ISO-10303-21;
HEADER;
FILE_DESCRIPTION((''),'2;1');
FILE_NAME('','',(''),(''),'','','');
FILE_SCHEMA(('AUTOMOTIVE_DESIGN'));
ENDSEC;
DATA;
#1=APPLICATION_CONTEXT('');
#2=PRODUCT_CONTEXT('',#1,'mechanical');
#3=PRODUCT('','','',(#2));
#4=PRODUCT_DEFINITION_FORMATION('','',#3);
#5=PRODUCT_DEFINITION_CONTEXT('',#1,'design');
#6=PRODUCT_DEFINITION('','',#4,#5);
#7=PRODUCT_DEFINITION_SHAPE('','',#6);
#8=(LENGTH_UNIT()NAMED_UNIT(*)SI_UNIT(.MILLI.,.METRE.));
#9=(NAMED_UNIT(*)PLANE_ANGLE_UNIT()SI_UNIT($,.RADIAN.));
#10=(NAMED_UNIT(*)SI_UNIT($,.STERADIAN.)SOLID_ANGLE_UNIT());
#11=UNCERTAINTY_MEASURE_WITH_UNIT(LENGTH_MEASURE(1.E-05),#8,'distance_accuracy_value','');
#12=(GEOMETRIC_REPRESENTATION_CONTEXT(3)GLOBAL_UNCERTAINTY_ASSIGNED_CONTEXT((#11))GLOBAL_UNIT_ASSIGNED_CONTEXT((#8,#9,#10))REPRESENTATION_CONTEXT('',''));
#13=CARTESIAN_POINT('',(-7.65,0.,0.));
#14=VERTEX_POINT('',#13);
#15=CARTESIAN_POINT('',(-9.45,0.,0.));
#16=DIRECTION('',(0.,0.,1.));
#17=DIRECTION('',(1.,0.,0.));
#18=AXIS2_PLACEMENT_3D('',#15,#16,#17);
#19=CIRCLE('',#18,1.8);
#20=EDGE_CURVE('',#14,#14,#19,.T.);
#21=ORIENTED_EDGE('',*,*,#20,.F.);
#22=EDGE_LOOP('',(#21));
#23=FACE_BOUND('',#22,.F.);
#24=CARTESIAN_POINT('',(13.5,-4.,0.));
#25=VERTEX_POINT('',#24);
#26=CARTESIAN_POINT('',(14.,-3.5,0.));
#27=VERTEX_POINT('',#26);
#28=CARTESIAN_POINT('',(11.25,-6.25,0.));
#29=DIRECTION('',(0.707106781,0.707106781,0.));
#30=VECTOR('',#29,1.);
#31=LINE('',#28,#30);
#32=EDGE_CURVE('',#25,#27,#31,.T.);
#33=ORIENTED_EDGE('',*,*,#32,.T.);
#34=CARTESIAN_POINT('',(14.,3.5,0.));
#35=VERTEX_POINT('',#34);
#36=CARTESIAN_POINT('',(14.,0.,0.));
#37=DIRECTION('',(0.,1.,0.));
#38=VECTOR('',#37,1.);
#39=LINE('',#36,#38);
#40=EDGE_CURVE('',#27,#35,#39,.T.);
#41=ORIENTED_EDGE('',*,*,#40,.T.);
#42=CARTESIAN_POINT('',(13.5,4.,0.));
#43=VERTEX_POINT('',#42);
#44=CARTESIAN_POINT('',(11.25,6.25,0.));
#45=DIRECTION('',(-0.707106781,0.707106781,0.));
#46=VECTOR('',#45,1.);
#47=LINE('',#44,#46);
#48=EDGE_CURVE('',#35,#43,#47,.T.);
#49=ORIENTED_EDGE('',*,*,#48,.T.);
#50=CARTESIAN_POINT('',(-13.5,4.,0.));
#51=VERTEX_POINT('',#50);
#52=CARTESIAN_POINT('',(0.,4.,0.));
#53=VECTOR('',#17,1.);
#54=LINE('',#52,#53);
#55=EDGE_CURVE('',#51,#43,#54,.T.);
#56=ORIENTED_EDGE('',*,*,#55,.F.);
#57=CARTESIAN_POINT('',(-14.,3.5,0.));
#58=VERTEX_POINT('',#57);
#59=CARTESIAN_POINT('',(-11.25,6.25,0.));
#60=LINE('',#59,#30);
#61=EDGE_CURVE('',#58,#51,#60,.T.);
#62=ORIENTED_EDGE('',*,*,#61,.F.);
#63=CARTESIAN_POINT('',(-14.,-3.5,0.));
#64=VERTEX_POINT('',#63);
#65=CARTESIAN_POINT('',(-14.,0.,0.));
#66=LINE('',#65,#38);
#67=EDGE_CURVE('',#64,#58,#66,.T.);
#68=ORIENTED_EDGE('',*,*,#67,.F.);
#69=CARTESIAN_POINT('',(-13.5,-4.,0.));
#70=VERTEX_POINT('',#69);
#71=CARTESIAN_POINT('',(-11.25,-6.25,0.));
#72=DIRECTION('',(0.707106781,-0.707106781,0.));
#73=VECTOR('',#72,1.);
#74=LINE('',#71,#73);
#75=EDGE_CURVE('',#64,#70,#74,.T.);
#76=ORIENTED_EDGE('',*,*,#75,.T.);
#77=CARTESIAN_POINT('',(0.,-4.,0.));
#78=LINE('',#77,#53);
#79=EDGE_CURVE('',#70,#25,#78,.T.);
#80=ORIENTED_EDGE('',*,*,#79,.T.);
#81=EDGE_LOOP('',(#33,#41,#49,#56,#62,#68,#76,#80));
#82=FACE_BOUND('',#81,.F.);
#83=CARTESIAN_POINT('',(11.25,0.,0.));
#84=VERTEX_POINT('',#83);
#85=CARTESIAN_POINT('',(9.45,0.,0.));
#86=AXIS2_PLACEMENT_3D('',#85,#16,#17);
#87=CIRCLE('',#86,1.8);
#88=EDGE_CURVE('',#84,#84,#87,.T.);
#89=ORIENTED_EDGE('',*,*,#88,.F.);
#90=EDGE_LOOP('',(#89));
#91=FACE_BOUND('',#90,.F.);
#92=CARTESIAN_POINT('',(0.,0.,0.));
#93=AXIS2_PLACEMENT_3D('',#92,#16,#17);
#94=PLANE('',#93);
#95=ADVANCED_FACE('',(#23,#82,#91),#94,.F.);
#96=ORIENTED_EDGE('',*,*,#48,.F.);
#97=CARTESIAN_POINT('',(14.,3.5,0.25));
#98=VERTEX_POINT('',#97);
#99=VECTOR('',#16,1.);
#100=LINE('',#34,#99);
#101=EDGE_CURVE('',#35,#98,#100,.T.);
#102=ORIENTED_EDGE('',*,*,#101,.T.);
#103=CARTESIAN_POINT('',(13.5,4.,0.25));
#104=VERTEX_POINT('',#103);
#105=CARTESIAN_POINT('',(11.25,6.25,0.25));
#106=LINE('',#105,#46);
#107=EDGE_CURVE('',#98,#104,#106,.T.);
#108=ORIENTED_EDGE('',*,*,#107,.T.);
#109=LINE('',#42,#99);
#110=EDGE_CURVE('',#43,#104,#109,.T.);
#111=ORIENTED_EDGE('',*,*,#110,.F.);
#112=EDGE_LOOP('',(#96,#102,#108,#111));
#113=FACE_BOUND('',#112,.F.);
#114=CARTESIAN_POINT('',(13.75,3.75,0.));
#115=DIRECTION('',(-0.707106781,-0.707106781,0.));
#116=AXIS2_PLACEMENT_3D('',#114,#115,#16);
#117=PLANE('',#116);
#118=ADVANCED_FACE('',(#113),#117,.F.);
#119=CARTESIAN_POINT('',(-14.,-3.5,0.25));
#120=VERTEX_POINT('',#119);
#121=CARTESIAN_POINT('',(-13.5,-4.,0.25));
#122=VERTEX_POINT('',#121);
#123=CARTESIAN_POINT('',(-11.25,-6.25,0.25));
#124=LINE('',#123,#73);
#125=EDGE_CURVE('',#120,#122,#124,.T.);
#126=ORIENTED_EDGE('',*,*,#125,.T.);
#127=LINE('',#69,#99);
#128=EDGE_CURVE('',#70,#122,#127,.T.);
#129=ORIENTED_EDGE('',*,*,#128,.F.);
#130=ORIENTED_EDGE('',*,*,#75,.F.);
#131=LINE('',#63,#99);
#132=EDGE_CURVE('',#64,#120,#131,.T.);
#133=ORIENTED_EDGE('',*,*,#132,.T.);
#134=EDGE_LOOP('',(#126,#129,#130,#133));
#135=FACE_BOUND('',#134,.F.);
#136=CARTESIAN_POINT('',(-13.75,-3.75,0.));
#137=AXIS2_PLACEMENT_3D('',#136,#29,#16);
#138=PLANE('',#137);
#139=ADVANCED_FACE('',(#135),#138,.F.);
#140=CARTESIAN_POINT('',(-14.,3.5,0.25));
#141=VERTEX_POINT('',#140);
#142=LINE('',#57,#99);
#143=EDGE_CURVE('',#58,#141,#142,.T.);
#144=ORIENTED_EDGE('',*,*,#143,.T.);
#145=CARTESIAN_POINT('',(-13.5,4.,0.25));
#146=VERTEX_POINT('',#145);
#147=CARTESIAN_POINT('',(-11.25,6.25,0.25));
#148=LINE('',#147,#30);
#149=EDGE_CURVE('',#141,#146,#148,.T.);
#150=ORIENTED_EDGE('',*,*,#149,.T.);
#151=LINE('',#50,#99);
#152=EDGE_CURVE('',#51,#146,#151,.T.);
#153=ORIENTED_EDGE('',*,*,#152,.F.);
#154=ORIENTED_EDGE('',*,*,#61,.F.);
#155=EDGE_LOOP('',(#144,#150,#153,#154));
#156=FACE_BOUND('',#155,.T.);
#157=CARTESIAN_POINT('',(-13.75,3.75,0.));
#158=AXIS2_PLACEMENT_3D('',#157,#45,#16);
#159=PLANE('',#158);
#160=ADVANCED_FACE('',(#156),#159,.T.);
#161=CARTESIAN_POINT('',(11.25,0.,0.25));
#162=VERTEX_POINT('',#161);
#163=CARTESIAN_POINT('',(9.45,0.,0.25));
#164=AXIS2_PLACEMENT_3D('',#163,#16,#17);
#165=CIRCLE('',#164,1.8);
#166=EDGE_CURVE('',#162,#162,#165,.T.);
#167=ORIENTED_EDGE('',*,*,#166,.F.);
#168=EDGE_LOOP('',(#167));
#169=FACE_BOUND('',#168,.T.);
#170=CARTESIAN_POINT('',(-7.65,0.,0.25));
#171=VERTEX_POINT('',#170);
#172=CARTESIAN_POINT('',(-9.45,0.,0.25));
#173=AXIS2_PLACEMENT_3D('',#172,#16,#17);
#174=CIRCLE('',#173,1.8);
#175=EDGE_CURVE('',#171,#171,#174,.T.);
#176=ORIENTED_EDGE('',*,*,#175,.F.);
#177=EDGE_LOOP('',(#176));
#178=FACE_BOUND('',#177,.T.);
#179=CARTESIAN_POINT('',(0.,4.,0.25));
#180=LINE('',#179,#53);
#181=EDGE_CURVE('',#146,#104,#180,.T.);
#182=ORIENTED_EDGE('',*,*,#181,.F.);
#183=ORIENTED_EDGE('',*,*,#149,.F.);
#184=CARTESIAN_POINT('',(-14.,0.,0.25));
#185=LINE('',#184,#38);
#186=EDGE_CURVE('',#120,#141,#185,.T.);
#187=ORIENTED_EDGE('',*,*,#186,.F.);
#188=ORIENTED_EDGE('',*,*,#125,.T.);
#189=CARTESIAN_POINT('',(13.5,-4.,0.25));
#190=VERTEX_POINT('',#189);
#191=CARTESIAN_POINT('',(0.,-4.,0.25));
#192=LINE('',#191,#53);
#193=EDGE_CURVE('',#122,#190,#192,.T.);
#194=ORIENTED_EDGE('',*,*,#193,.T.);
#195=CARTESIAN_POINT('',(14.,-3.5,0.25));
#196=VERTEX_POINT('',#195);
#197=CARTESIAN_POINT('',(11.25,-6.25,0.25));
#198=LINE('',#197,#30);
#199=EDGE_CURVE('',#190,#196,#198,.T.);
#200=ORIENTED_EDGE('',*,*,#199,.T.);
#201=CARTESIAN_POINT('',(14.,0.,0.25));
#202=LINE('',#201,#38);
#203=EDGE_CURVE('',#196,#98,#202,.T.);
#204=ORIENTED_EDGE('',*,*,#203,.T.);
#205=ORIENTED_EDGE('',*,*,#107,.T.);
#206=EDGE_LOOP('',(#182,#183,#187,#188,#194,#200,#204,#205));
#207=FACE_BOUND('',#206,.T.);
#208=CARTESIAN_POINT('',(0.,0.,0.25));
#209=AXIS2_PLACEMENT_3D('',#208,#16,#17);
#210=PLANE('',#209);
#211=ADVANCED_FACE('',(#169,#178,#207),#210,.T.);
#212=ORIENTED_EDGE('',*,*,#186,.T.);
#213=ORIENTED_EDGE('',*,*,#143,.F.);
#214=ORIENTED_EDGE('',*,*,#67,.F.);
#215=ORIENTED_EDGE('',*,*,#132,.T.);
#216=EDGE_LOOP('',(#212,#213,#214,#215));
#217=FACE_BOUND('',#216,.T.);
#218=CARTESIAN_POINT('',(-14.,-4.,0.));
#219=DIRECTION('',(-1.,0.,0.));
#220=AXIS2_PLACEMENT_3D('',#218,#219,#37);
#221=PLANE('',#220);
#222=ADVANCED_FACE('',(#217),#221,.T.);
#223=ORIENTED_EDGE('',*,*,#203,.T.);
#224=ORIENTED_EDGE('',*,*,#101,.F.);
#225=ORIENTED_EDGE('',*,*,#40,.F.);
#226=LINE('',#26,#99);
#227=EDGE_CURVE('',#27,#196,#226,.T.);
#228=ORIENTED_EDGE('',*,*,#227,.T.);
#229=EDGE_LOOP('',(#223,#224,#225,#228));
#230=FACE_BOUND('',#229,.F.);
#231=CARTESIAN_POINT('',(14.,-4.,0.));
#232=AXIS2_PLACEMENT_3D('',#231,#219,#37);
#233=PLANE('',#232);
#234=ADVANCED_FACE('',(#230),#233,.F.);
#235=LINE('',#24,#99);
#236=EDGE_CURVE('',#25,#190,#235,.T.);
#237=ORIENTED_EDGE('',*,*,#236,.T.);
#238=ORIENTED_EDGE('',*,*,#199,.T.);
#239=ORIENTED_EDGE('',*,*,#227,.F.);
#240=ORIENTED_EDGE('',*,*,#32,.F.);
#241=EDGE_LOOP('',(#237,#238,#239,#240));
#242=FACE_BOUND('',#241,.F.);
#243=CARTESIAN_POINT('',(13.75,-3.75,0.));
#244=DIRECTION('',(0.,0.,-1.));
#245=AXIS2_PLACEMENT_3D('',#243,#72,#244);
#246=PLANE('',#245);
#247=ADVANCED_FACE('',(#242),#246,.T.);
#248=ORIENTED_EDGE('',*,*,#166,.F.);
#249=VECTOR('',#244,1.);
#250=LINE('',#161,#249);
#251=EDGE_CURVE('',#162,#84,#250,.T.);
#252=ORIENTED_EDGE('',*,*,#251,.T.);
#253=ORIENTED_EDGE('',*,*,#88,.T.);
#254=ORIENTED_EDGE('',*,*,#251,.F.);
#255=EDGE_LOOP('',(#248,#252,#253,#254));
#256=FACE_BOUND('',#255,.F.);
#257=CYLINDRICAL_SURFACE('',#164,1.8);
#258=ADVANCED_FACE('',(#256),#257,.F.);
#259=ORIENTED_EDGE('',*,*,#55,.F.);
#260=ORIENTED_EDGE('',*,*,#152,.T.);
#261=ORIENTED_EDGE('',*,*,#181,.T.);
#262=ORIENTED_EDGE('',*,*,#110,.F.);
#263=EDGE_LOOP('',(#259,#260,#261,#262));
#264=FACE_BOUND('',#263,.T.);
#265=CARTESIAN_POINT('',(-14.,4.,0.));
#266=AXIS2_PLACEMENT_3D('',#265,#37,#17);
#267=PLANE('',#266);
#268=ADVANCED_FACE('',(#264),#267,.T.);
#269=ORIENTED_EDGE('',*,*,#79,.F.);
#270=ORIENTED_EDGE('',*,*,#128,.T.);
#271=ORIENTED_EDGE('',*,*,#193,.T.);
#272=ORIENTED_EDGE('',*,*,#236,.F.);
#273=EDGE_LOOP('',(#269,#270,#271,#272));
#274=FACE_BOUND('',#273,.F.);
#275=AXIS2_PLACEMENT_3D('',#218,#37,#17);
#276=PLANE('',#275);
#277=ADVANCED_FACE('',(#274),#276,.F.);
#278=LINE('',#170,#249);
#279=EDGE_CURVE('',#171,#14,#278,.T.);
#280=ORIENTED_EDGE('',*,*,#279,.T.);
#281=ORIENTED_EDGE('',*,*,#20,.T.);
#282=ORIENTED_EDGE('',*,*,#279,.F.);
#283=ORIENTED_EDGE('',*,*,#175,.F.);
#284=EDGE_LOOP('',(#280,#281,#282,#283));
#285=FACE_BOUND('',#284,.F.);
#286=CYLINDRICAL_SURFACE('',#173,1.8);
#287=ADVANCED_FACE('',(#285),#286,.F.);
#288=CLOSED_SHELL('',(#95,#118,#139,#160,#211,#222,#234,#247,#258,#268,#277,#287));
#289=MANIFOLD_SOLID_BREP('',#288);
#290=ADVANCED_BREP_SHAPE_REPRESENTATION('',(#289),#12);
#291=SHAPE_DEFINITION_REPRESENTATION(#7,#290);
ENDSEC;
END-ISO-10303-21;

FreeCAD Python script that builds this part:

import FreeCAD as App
import Part
import Sketcher
Q = App.Units.Quantity


def edges_at(feature, points):
    """Names of the edges that pass closest to the given points."""
    edges = feature.Shape.Edges
    near = lambda p: min(range(len(edges)), key=lambda i: edges[i].distToShape(Part.Vertex(*p))[0])
    return sorted({f"Edge{near(p) + 1}" for p in points})


def add_polygon(sketch, points):
    """Adds a closed chain of lines whose ends are joined by coincident constraints."""
    first, n = sketch.GeometryCount, len(points)
    for a, b in zip(points, points[1:] + points[:1]):
        sketch.addGeometry(Part.LineSegment(App.Vector(*a, 0), App.Vector(*b, 0)), False)
    for i in range(n):
        sketch.addConstraint(Sketcher.Constraint("Coincident", first + i, 2, first + (i + 1) % n, 1))

doc = App.newDocument("Part")
body = doc.addObject("PartDesign::Body", "Body")

# Sketch on XY plane
sketch1 = body.newObject("Sketcher::SketchObject", "Sketch")
sketch1.AttachmentSupport = (doc.getObject("XY_Plane"), [""])
sketch1.MapMode = "FlatFace"
add_polygon(sketch1, [(-14, 4), (-14, -4), (14, -4), (14, 4)])  # lines 0-3
sketch1.addConstraint(Sketcher.Constraint("Vertical", 0))
sketch1.addConstraint(Sketcher.Constraint("Horizontal", 1))
sketch1.addConstraint(Sketcher.Constraint("Vertical", 2))
sketch1.addConstraint(Sketcher.Constraint("Horizontal", 3))
sketch1.addConstraint(Sketcher.Constraint("Symmetric", 0, 2, 2, 2, -1, 1))
sketch1.addConstraint(Sketcher.Constraint("DistanceX", 1, 1, 1, 2, Q("28 mm")))
sketch1.addConstraint(Sketcher.Constraint("DistanceY", 0, 2, 0, 1, Q("8 mm")))
pad1 = body.newObject("PartDesign::Pad", "Pad")
pad1.Profile = sketch1
pad1.Length = 0.25
doc.recompute()

chamfer = body.newObject("PartDesign::Chamfer", "Chamfer")
chamfer.Base = (pad1, edges_at(pad1, [
    (-14, -4, 0.125),
    (-14, 4, 0.125),
    (14, -4, 0.125),
    (14, 4, 0.125),
]))
chamfer.Size = 0.5

# Sketch on XY plane
sketch2 = body.newObject("Sketcher::SketchObject", "Sketch001")
sketch2.AttachmentSupport = (doc.getObject("XY_Plane"), [""])
sketch2.MapMode = "FlatFace"
sketch2.AttachmentOffset = App.Placement(App.Vector(0, 0, 0.25), App.Rotation())
sketch2.addGeometry(Part.Circle(App.Vector(-9.4, 0, 0), App.Vector(0, 0, 1), 1.8), False)
sketch2.addGeometry(Part.Circle(App.Vector(9.4, 0, 0), App.Vector(0, 0, 1), 1.8), False)
sketch2.addConstraint(Sketcher.Constraint("Equal", 0, 1))
sketch2.addConstraint(Sketcher.Constraint("Symmetric", 0, 3, 1, 3, -1, 1))
sketch2.addConstraint(Sketcher.Constraint("PointOnObject", 0, 3, -1))
sketch2.addConstraint(Sketcher.Constraint("Diameter", 0, Q("3.6 mm")))
sketch2.addConstraint(Sketcher.Constraint("DistanceX", 0, 3, 1, 3, Q("18.9 mm")))
pocket1 = body.newObject("PartDesign::Pocket", "Pocket")
pocket1.Profile = sketch2
pocket1.Type = "ThroughAll"

doc.recompute()
